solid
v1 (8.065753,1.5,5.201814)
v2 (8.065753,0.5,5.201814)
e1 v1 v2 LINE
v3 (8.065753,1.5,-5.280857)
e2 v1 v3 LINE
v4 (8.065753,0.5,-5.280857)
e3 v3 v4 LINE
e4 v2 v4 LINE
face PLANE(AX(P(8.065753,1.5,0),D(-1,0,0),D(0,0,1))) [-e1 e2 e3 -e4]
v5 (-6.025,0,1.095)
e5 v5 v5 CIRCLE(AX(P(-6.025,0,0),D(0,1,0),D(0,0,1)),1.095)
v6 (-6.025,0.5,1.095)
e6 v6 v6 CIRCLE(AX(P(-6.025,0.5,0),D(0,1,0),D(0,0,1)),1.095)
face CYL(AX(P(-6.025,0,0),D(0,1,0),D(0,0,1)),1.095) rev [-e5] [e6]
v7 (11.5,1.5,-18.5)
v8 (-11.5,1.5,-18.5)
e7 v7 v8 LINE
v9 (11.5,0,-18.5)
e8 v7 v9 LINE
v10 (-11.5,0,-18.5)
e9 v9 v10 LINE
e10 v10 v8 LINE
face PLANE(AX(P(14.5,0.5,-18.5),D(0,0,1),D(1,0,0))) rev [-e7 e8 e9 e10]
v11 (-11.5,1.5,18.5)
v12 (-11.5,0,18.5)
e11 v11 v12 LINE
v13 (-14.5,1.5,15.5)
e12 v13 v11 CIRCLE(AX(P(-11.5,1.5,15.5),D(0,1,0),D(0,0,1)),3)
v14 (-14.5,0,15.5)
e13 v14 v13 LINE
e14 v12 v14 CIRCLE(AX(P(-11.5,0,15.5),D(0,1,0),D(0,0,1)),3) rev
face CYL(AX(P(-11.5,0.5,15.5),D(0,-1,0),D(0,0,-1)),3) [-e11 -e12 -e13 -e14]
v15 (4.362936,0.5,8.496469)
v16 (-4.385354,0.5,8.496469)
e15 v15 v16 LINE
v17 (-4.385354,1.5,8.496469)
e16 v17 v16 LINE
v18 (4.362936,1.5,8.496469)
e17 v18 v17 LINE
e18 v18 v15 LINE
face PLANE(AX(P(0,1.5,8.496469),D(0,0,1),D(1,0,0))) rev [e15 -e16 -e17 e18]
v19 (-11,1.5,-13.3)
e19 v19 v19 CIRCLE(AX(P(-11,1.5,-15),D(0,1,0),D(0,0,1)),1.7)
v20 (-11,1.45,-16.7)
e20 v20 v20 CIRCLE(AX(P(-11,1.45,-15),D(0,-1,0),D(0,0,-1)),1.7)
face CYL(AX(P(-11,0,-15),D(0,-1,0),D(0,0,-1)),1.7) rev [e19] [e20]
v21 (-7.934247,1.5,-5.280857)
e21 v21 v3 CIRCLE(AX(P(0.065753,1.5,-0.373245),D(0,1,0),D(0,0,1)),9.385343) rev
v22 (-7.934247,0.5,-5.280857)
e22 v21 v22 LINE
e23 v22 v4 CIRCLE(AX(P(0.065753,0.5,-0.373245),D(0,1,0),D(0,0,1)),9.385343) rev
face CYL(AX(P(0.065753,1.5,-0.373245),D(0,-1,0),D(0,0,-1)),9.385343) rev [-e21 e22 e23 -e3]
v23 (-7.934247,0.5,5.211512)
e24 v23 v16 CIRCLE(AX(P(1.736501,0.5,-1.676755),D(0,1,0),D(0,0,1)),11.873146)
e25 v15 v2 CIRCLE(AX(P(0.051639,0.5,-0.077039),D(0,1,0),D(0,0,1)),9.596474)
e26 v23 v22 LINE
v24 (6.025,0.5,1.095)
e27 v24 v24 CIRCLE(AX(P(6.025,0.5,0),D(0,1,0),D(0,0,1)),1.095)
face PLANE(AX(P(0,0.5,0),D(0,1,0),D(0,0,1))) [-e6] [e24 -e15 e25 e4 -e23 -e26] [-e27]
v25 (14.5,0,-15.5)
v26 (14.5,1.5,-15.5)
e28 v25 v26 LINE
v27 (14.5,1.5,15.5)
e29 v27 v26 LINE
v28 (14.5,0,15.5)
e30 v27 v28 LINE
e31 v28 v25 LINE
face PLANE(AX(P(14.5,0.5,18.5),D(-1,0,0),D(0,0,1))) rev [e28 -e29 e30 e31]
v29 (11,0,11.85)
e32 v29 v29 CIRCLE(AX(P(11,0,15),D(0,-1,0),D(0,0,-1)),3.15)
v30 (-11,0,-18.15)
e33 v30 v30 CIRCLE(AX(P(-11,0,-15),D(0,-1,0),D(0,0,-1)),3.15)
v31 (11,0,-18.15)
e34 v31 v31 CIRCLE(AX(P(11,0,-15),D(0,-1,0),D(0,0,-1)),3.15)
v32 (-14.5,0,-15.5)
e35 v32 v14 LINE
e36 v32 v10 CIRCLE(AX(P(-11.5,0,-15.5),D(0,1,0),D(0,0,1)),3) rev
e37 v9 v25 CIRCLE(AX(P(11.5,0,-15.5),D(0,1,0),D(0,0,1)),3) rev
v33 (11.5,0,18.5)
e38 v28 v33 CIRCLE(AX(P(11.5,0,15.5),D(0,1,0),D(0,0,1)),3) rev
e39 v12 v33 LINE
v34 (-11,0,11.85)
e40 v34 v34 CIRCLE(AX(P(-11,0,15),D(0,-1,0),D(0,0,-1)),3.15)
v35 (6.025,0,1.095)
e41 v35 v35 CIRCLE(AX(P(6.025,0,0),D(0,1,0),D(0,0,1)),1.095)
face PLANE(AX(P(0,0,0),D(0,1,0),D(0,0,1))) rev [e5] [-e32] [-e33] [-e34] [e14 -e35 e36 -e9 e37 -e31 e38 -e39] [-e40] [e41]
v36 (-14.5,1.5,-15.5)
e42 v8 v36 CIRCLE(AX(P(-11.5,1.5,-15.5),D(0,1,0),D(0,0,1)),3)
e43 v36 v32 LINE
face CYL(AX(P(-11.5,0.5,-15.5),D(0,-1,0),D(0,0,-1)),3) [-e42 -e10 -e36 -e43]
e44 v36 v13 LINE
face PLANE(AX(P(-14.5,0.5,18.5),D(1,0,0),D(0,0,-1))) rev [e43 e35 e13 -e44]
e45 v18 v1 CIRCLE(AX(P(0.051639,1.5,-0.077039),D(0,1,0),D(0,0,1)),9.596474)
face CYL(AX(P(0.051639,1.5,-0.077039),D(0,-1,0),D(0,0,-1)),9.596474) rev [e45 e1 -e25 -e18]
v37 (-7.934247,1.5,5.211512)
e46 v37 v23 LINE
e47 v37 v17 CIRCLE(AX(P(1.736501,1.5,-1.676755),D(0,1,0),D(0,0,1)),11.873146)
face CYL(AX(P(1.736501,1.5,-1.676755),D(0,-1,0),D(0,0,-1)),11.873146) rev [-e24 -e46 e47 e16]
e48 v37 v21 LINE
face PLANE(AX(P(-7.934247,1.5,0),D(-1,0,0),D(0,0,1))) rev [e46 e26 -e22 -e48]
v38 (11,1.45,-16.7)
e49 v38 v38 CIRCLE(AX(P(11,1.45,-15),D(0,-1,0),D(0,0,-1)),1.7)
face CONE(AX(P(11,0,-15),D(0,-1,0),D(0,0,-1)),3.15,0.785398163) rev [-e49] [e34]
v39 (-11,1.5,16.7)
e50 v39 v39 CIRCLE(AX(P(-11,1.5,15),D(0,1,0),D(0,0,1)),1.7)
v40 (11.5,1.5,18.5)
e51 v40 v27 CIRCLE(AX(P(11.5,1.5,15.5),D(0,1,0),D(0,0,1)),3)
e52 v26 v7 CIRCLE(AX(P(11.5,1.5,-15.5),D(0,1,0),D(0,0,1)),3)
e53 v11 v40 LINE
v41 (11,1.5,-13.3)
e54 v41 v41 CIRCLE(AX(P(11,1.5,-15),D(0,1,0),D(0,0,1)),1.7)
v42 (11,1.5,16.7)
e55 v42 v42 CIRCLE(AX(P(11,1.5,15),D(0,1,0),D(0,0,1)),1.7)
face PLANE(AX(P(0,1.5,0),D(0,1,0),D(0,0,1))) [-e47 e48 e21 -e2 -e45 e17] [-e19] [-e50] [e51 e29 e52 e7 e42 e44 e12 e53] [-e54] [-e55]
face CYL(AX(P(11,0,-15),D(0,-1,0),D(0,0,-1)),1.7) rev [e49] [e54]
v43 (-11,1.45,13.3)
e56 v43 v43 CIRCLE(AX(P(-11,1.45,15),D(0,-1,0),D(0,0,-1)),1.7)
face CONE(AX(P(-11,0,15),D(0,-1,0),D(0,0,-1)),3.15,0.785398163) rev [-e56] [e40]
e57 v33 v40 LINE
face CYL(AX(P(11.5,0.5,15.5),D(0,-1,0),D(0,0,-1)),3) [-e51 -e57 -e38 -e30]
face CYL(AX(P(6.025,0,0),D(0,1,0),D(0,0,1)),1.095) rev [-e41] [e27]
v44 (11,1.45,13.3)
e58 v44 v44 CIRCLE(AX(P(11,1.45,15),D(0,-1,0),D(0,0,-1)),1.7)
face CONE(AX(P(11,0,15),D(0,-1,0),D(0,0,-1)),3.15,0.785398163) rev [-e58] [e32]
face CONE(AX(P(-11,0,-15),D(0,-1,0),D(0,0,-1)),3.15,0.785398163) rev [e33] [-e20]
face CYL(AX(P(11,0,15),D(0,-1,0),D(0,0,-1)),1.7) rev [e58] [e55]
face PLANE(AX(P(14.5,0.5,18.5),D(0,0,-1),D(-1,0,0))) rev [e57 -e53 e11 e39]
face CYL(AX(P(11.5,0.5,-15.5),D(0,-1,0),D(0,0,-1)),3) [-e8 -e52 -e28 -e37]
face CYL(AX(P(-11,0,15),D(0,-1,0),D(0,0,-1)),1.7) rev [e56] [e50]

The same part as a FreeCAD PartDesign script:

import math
import FreeCAD as App
import Part
import Sketcher
Q = App.Units.Quantity


def edges_at(feature, points):
    """Names of the edges that pass closest to the given points."""
    edges = feature.Shape.Edges
    near = lambda p: min(range(len(edges)), key=lambda i: edges[i].distToShape(Part.Vertex(*p))[0])
    return sorted({f"Edge{near(p) + 1}" for p in points})


def add_polygon(sketch, points):
    """Adds a closed chain of lines whose ends are joined by coincident constraints."""
    first, n = sketch.GeometryCount, len(points)
    for a, b in zip(points, points[1:] + points[:1]):
        sketch.addGeometry(Part.LineSegment(App.Vector(*a, 0), App.Vector(*b, 0)), False)
    for i in range(n):
        sketch.addConstraint(Sketcher.Constraint("Coincident", first + i, 2, first + (i + 1) % n, 1))

doc = App.newDocument("Part")
body = doc.addObject("PartDesign::Body", "Body")

# Sketch on XZ plane
sketch1 = body.newObject("Sketcher::SketchObject", "Sketch")
sketch1.AttachmentSupport = (doc.getObject("XZ_Plane"), [""])
sketch1.MapMode = "FlatFace"
add_polygon(sketch1, [(-14, -18), (-14, 18), (14, 18), (14, -18)])  # lines 0-3
sketch1.addConstraint([
    Sketcher.Constraint("Vertical", 0),
    Sketcher.Constraint("Horizontal", 1),
    Sketcher.Constraint("Vertical", 2),
    Sketcher.Constraint("Horizontal", 3),
    Sketcher.Constraint("Symmetric", 0, 2, 2, 2, -1, 1),
    Sketcher.Constraint("DistanceX", 1, 1, 1, 2, 29.0),
    Sketcher.Constraint("DistanceY", 0, 1, 0, 2, 37.0),
])
pad1 = body.newObject("PartDesign::Pad", "Pad")
pad1.Profile = sketch1
pad1.Length = 0.5
pad1.Reversed = True

# Sketch on XZ plane
sketch2 = body.newObject("Sketcher::SketchObject", "Sketch001")
sketch2.AttachmentSupport = (doc.getObject("XZ_Plane"), [""])
sketch2.MapMode = "FlatFace"
sketch2.AttachmentOffset = App.Placement(App.Vector(0, 0, -0.5), App.Rotation())
sketch2.addGeometry([
    Part.Circle(App.Vector(-6, 0, 0), App.Vector(0, 0, 1), 1.1),
    Part.Circle(App.Vector(6, 0, 0), App.Vector(0, 0, 1), 1.1),
], False)
sketch2.addConstraint([
    Sketcher.Constraint("Equal", 0, 1),
    Sketcher.Constraint("Symmetric", 0, 3, 1, 3, -1, 1),
    Sketcher.Constraint("PointOnObject", 0, 3, -1),
    Sketcher.Constraint("Diameter", 0, 2.19),
    Sketcher.Constraint("DistanceX", 0, 3, 1, 3, 12.05),
])
pocket1 = body.newObject("PartDesign::Pocket", "Pocket")
pocket1.Profile = sketch2
pocket1.Type = "ThroughAll"
pocket1.Midplane = True

# Sketch on XZ plane
sketch3 = body.newObject("Sketcher::SketchObject", "Sketch002")
sketch3.AttachmentSupport = (doc.getObject("XZ_Plane"), [""])
sketch3.MapMode = "FlatFace"
sketch3.AttachmentOffset = App.Placement(App.Vector(0, 0, -0.5), App.Rotation())
add_polygon(sketch3, [(-14.5, -18.5), (-14.5, 18.5), (14.5, 18.5), (14.5, -18.5)])  # lines 0-3
sketch3.addGeometry(Part.ArcOfCircle(Part.Circle(App.Vector(0.1, -0.1, 0), App.Vector(0, 0, 1), 9.6), math.radians(33), math.radians(63)), False)  # 4
sketch3.addGeometry(Part.LineSegment(App.Vector(4.4, 8.5, 0), App.Vector(-4.4, 8.5, 0)), False)  # 5
sketch3.addGeometry(Part.ArcOfCircle(Part.Circle(App.Vector(1.7, -1.7, 0), App.Vector(0, 0, 1), 11.9), math.radians(121), math.radians(145)), False)  # 6
sketch3.addGeometry(Part.LineSegment(App.Vector(-7.9, 5.2, 0), App.Vector(-7.9, -5.3, 0)), False)  # 7
sketch3.addGeometry(Part.ArcOfCircle(Part.Circle(App.Vector(0.1, -0.4, 0), App.Vector(0, 0, 1), 9.4), math.radians(-148), math.radians(-32)), False)  # 8
sketch3.addGeometry(Part.LineSegment(App.Vector(8.1, -5.3, 0), App.Vector(8.1, 5.2, 0)), False)  # 9
sketch3.addConstraint([
    Sketcher.Constraint("Coincident", 4, 2, 5, 1),
    Sketcher.Constraint("Coincident", 5, 2, 6, 1),
    Sketcher.Constraint("Coincident", 6, 2, 7, 1),
    Sketcher.Constraint("Coincident", 7, 2, 8, 1),
    Sketcher.Constraint("Coincident", 8, 2, 9, 1),
    Sketcher.Constraint("Coincident", 9, 2, 4, 1),
    Sketcher.Constraint("Vertical", 0),
    Sketcher.Constraint("Horizontal", 1),
    Sketcher.Constraint("Vertical", 2),
    Sketcher.Constraint("Horizontal", 3),
    Sketcher.Constraint("Horizontal", 5),
    Sketcher.Constraint("Vertical", 7),
    Sketcher.Constraint("Vertical", 9),
    Sketcher.Constraint("Symmetric", 0, 2, 2, 2, -1, 1),
    Sketcher.Constraint("Horizontal", 7, 2, 8, 2),
    Sketcher.Constraint("DistanceX", 1, 1, 1, 2, 29.0),
    Sketcher.Constraint("DistanceY", 0, 1, 0, 2, 37.0),
    Sketcher.Constraint("DistanceX", 6, 2, 8, 3, 8.0),
    Sketcher.Constraint("Radius", 4, 9.596474),
    Sketcher.Constraint("Radius", 6, 11.873146),
    Sketcher.Constraint("Radius", 8, 9.385343),
    Sketcher.Constraint("DistanceX", 5, 2, 5, 1, 8.74829),
    Sketcher.Constraint("DistanceY", 7, 2, 7, 1, 10.492369),
    Sketcher.Constraint("DistanceY", 9, 1, 9, 2, 10.482671),
    Sketcher.Constraint("DistanceX", -1, 1, 6, 3, 1.736501),
    Sketcher.Constraint("DistanceY", 7, 2, 6, 3, 3.604102),
    Sketcher.Constraint("DistanceX", -1, 1, 4, 3, 0.051639),
    Sketcher.Constraint("DistanceY", 4, 3, -1, 1, 0.077039),
])
pad2 = body.newObject("PartDesign::Pad", "Pad001")
pad2.Profile = sketch3
pad2.Length = 1
pad2.Reversed = True
doc.recompute()

fillet = body.newObject("PartDesign::Fillet", "Fillet")
fillet.Base = (pad2, edges_at(pad2, [
    (-14.5, 0.75, -18.5),
    (14.5, 0.75, -18.5),
    (14.5, 0.75, 18.5),
    (-14.5, 0.75, 18.5),
]))
fillet.Radius = 3

# Sketch on YZ plane
sketch4 = body.newObject("Sketcher::SketchObject", "Sketch003")
sketch4.AttachmentSupport = (doc.getObject("YZ_Plane"), [""])
sketch4.MapMode = "FlatFace"
sketch4.AttachmentOffset = App.Placement(App.Vector(0, 0, -11), App.Rotation())
add_polygon(sketch4, [(1.5, -15), (0, -15), (0, -18.15), (1.45, -16.7), (1.5, -16.7)])  # lines 0-4
sketch4.addGeometry(Part.LineSegment(App.Vector(0, -15, 0), App.Vector(1.5, -15, 0)), True)  # axis
sketch4.addConstraint([
    Sketcher.Constraint("Horizontal", 0),
    Sketcher.Constraint("Vertical", 1),
    Sketcher.Constraint("Horizontal", 3),
    Sketcher.Constraint("Vertical", 4),
    Sketcher.Constraint("Horizontal", 5),
    Sketcher.Constraint("Coincident", 5, 1, 0, 2),
    Sketcher.Constraint("PointOnObject", 0, 2, -2),
    Sketcher.Constraint("Vertical", 3, 2, 5, 2),
    Sketcher.Constraint("Angle", 2, Q("45 deg")),
    Sketcher.Constraint("DistanceX", 0, 2, 0, 1, 1.5),
    Sketcher.Constraint("DistanceY", 4, 1, 4, 2, 1.7),
    Sketcher.Constraint("DistanceY", 0, 2, -1, 1, 15.0),
    Sketcher.Constraint("DistanceX", 3, 1, 3, 2, 0.05),
])
groove = body.newObject("PartDesign::Groove", "Groove")
groove.Profile = sketch4
groove.ReferenceAxis = (sketch4, ["Axis0"])
groove.Angle = 360
doc.recompute()

linearpattern = body.newObject("PartDesign::LinearPattern", "LinearPattern")
linearpattern.Originals = [groove]
linearpattern.Direction = (doc.getObject("X_Axis"), [""])
linearpattern.Mode = "offset"
linearpattern.Offset = 22
linearpattern.Occurrences = 2
body.Tip = linearpattern
doc.recompute()

datumline = body.newObject("PartDesign::Line", "DatumLine")
datumline.Placement = App.Placement(App.Vector(0, 0, 0), App.Rotation(App.Vector(0, 0, 1), App.Vector(0.591363664, 0, 0.806404996)))
linearpattern2 = body.newObject("PartDesign::LinearPattern", "LinearPattern001")
linearpattern2.Originals = [groove]
linearpattern2.Direction = (datumline, [""])
linearpattern2.Mode = "offset"
linearpattern2.Offset = 37.20215
linearpattern2.Occurrences = 2
body.Tip = linearpattern2
doc.recompute()

linearpattern3 = body.newObject("PartDesign::LinearPattern", "LinearPattern002")
linearpattern3.Originals = [groove]
linearpattern3.Direction = (doc.getObject("Z_Axis"), [""])
linearpattern3.Mode = "offset"
linearpattern3.Offset = 30
linearpattern3.Occurrences = 2
body.Tip = linearpattern3

doc.recompute()
